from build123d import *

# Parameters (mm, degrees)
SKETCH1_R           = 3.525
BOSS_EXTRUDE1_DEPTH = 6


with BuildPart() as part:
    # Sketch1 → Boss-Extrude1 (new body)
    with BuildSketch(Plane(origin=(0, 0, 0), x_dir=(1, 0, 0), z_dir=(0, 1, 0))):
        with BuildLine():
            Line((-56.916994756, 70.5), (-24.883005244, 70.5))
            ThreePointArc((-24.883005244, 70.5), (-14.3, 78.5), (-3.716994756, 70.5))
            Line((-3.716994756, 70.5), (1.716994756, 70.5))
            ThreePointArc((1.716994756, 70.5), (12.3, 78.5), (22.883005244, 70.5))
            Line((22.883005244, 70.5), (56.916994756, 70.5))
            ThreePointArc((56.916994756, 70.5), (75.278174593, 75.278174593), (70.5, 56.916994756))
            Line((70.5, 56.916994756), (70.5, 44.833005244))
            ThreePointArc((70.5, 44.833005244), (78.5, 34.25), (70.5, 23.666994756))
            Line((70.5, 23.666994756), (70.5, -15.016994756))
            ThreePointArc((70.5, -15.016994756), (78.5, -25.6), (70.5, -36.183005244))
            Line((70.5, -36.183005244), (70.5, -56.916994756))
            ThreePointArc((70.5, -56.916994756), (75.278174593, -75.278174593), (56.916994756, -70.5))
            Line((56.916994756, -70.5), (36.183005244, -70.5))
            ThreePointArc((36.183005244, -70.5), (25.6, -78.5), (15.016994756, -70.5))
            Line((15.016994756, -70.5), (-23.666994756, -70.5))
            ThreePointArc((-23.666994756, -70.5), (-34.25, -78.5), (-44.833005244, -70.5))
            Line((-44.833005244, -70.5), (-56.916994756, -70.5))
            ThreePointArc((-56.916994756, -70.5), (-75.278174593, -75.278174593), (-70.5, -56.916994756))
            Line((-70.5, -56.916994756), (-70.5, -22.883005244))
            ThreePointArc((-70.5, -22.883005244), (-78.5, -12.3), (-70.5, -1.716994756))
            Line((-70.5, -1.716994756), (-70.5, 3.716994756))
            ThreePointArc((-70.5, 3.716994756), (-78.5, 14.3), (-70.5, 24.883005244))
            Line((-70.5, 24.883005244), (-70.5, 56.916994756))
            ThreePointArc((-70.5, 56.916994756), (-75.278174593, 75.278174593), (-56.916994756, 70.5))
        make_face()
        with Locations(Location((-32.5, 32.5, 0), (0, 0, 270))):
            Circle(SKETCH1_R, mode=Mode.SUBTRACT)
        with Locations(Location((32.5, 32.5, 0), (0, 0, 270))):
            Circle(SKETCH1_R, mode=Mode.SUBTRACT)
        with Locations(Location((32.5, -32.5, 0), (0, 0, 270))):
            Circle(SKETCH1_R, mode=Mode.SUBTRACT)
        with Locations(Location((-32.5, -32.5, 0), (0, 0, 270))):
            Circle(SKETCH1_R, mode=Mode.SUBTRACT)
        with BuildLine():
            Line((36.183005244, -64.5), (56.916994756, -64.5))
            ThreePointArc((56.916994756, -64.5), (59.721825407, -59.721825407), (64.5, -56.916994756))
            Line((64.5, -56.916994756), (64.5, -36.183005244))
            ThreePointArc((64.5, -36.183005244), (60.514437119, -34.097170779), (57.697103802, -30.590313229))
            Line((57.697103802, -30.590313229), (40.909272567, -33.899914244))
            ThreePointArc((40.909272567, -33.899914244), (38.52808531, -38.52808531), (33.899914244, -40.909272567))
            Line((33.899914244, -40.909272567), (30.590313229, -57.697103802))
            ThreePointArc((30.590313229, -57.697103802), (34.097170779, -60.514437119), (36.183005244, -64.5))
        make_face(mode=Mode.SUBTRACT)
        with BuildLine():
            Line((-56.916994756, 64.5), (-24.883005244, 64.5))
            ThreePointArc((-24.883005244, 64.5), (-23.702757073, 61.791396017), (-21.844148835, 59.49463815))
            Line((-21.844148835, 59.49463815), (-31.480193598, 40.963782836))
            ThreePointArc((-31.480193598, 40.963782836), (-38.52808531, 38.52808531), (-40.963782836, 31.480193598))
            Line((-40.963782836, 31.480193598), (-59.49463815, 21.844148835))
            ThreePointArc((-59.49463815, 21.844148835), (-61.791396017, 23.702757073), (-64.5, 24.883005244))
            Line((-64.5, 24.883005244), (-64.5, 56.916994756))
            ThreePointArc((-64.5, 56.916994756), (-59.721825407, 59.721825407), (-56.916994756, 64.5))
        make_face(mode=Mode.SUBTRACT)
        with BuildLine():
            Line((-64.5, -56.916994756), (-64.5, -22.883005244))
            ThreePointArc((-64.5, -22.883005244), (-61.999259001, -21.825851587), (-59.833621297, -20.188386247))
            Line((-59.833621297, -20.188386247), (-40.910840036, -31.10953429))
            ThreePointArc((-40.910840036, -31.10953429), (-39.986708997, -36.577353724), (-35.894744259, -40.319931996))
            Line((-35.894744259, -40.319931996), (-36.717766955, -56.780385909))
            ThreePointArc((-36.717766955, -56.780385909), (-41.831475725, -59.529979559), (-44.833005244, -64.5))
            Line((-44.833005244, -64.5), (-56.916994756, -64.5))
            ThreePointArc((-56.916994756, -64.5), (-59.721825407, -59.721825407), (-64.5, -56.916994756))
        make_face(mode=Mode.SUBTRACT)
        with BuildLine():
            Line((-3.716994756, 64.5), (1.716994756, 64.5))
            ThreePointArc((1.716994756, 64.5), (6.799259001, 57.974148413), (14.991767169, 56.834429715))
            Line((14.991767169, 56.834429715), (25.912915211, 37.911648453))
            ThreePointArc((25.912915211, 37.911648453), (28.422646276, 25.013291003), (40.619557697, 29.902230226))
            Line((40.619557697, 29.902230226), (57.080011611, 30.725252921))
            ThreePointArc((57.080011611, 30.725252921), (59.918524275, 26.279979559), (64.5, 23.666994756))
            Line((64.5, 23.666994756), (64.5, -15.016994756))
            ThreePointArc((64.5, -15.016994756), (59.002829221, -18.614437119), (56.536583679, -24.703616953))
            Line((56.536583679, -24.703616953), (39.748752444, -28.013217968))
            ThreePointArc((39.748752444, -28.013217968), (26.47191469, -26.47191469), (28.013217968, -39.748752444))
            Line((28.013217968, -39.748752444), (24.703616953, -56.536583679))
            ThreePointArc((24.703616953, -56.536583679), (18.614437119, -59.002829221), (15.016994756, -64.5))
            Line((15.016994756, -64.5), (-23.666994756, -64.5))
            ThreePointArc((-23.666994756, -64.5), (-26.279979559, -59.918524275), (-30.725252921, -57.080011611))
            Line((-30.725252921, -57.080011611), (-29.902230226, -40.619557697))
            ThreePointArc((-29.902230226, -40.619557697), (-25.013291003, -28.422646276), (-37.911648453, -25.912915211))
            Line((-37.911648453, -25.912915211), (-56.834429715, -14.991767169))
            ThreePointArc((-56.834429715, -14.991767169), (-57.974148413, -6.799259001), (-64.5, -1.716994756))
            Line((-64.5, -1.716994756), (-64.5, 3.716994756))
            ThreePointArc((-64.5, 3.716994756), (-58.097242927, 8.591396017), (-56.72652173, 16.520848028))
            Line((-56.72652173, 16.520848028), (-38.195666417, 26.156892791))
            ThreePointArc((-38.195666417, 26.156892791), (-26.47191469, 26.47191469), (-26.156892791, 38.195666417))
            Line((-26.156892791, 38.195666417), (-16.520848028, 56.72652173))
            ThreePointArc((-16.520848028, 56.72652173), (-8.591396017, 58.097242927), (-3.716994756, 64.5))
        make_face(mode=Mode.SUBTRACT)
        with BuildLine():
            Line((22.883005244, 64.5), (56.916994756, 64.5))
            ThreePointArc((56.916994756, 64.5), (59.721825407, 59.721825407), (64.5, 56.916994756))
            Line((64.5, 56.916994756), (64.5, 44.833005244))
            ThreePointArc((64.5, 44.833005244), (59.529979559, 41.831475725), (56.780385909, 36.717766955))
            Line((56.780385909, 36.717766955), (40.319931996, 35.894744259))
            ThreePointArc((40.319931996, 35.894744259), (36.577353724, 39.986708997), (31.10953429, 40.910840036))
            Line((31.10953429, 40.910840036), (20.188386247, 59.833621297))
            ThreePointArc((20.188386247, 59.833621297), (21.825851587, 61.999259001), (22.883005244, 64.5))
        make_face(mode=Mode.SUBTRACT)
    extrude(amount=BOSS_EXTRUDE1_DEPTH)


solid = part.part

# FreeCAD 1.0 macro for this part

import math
import FreeCAD as App
import Part
import Sketcher

V = App.Vector

doc = App.newDocument("Part")
body = doc.addObject("PartDesign::Body", "Body")

# Sketch on XZ plane
sketch1 = body.newObject("Sketcher::SketchObject", "Sketch")
sketch1.AttachmentSupport = (doc.getObject("XZ_Plane"), [""])
sketch1.MapMode = "FlatFace"
sketch1.addGeometry(Part.LineSegment(V(-24.9, -70.5, 0), V(-56.9, -70.5, 0)), False)
sketch1.addGeometry(Part.ArcOfCircle(Part.Circle(V(-67.5, -67.5, 0), V(0, 0, 1), 11), math.radians(106), math.radians(344)), False)
sketch1.addGeometry(Part.LineSegment(V(-70.5, -56.9, 0), V(-70.5, -24.9, 0)), False)
sketch1.addGeometry(Part.ArcOfCircle(Part.Circle(V(-67.5, -14.3, 0), V(0, 0, 1), 11), math.radians(106), math.radians(254)), False)
sketch1.addGeometry(Part.LineSegment(V(-70.5, -3.7, 0), V(-70.5, 1.7, 0)), False)
sketch1.addGeometry(Part.ArcOfCircle(Part.Circle(V(-67.5, 12.3, 0), V(0, 0, 1), 11), math.radians(106), math.radians(254)), False)
sketch1.addGeometry(Part.LineSegment(V(-70.5, 22.9, 0), V(-70.5, 56.9, 0)), False)
sketch1.addGeometry(Part.ArcOfCircle(Part.Circle(V(-67.5, 67.5, 0), V(0, 0, 1), 11), math.radians(16), math.radians(254)), False)
sketch1.addGeometry(Part.LineSegment(V(-56.9, 70.5, 0), V(-44.8, 70.5, 0)), False)
sketch1.addGeometry(Part.ArcOfCircle(Part.Circle(V(-34.2, 67.5, 0), V(0, 0, 1), 11), math.radians(16), math.radians(164)), False)
sketch1.addGeometry(Part.LineSegment(V(-23.7, 70.5, 0), V(15, 70.5, 0)), False)
sketch1.addGeometry(Part.ArcOfCircle(Part.Circle(V(25.6, 67.5, 0), V(0, 0, 1), 11), math.radians(16), math.radians(164)), False)
sketch1.addGeometry(Part.LineSegment(V(36.2, 70.5, 0), V(56.9, 70.5, 0)), False)
sketch1.addGeometry(Part.ArcOfCircle(Part.Circle(V(67.5, 67.5, 0), V(0, 0, 1), 11), math.radians(-74), math.radians(164)), False)
sketch1.addGeometry(Part.LineSegment(V(70.5, 56.9, 0), V(70.5, 36.2, 0)), False)
sketch1.addGeometry(Part.ArcOfCircle(Part.Circle(V(67.5, 25.6, 0), V(0, 0, 1), 11), math.radians(-74), math.radians(74)), False)
sketch1.addGeometry(Part.LineSegment(V(70.5, 15, 0), V(70.5, -23.7, 0)), False)
sketch1.addGeometry(Part.ArcOfCircle(Part.Circle(V(67.5, -34.2, 0), V(0, 0, 1), 11), math.radians(-74), math.radians(74)), False)
sketch1.addGeometry(Part.LineSegment(V(70.5, -44.8, 0), V(70.5, -56.9, 0)), False)
sketch1.addGeometry(Part.ArcOfCircle(Part.Circle(V(67.5, -67.5, 0), V(0, 0, 1), 11), math.radians(-164), math.radians(74)), False)
sketch1.addGeometry(Part.LineSegment(V(56.9, -70.5, 0), V(22.9, -70.5, 0)), False)
sketch1.addGeometry(Part.ArcOfCircle(Part.Circle(V(12.3, -67.5, 0), V(0, 0, 1), 11), math.radians(-164), math.radians(-16)), False)
sketch1.addGeometry(Part.LineSegment(V(1.7, -70.5, 0), V(-3.7, -70.5, 0)), False)
sketch1.addGeometry(Part.ArcOfCircle(Part.Circle(V(-14.3, -67.5, 0), V(0, 0, 1), 11), math.radians(-164), math.radians(-16)), False)
sketch1.addGeometry(Part.ArcOfCircle(Part.Circle(V(25.6, 67.5, 0), V(0, 0, 1), 11), math.radians(-63), math.radians(-16)), False)
sketch1.addGeometry(Part.LineSegment(V(30.6, 57.7, 0), V(33.9, 40.9, 0)), False)
sketch1.addGeometry(Part.ArcOfCircle(Part.Circle(V(32.5, 32.5, 0), V(0, 0, 1), 8.5), math.radians(9), math.radians(81)), False)
sketch1.addGeometry(Part.LineSegment(V(40.9, 33.9, 0), V(57.7, 30.6, 0)), False)
sketch1.addGeometry(Part.ArcOfCircle(Part.Circle(V(67.5, 25.6, 0), V(0, 0, 1), 11), math.radians(106), math.radians(153)), False)
sketch1.addGeometry(Part.LineSegment(V(64.5, 36.2, 0), V(64.5, 56.9, 0)), False)
sketch1.addGeometry(Part.ArcOfCircle(Part.Circle(V(67.5, 67.5, 0), V(0, 0, 1), 11), math.radians(-164), math.radians(-106)), False)
sketch1.addGeometry(Part.LineSegment(V(56.9, 64.5, 0), V(36.2, 64.5, 0)), False)
sketch1.addGeometry(Part.Circle(V(32.5, 32.5, 0), V(0, 0, 1), 3.5), False)
sketch1.addGeometry(Part.Circle(V(-32.5, 32.5, 0), V(0, 0, 1), 3.5), False)
sketch1.addGeometry(Part.LineSegment(V(-64.5, 56.9, 0), V(-64.5, 22.9, 0)), False)
sketch1.addGeometry(Part.ArcOfCircle(Part.Circle(V(-67.5, 12.3, 0), V(0, 0, 1), 11), math.radians(46), math.radians(74)), False)
sketch1.addGeometry(Part.LineSegment(V(-59.8, 20.2, 0), V(-40.9, 31.1, 0)), False)
sketch1.addGeometry(Part.ArcOfCircle(Part.Circle(V(-32.5, 32.5, 0), V(0, 0, 1), 8.5), math.radians(113), math.radians(189)), False)
sketch1.addGeometry(Part.LineSegment(V(-35.9, 40.3, 0), V(-36.7, 56.8, 0)), False)
sketch1.addGeometry(Part.ArcOfCircle(Part.Circle(V(-34.2, 67.5, 0), V(0, 0, 1), 11), math.radians(-164), math.radians(-103)), False)
sketch1.addGeometry(Part.LineSegment(V(-44.8, 64.5, 0), V(-56.9, 64.5, 0)), False)
sketch1.addGeometry(Part.ArcOfCircle(Part.Circle(V(-67.5, 67.5, 0), V(0, 0, 1), 11), math.radians(-74), math.radians(-16)), False)
sketch1.addGeometry(Part.Circle(V(32.5, -32.5, 0), V(0, 0, 1), 3.5), False)
sketch1.addGeometry(Part.LineSegment(V(22.9, -64.5, 0), V(56.9, -64.5, 0)), False)
sketch1.addGeometry(Part.ArcOfCircle(Part.Circle(V(67.5, -67.5, 0), V(0, 0, 1), 11), math.radians(106), math.radians(164)), False)
sketch1.addGeometry(Part.LineSegment(V(64.5, -56.9, 0), V(64.5, -44.8, 0)), False)
sketch1.addGeometry(Part.ArcOfCircle(Part.Circle(V(67.5, -34.2, 0), V(0, 0, 1), 11), math.radians(-167), math.radians(-106)), False)
sketch1.addGeometry(Part.LineSegment(V(56.8, -36.7, 0), V(40.3, -35.9, 0)), False)
sketch1.addGeometry(Part.ArcOfCircle(Part.Circle(V(32.5, -32.5, 0), V(0, 0, 1), 8.5), math.radians(-99), math.radians(-23)), False)
sketch1.addGeometry(Part.LineSegment(V(31.1, -40.9, 0), V(20.2, -59.8, 0)), False)
sketch1.addGeometry(Part.ArcOfCircle(Part.Circle(V(12.3, -67.5, 0), V(0, 0, 1), 11), math.radians(16), math.radians(44)), False)
sketch1.addGeometry(Part.LineSegment(V(-3.7, -64.5, 0), V(1.7, -64.5, 0)), False)
sketch1.addGeometry(Part.ArcOfCircle(Part.Circle(V(12.3, -67.5, 0), V(0, 0, 1), 11), math.radians(76), math.radians(164)), False)
sketch1.addGeometry(Part.LineSegment(V(15, -56.8, 0), V(25.9, -37.9, 0)), False)
sketch1.addGeometry(Part.ArcOfCircle(Part.Circle(V(32.5, -32.5, 0), V(0, 0, 1), 8.5), math.radians(18), math.radians(219)), False)
sketch1.addGeometry(Part.LineSegment(V(40.6, -29.9, 0), V(57.1, -30.7, 0)), False)
sketch1.addGeometry(Part.ArcOfCircle(Part.Circle(V(67.5, -34.2, 0), V(0, 0, 1), 11), math.radians(106), math.radians(161)), False)
sketch1.addGeometry(Part.LineSegment(V(64.5, -23.7, 0), V(64.5, 15, 0)), False)
sketch1.addGeometry(Part.ArcOfCircle(Part.Circle(V(67.5, 25.6, 0), V(0, 0, 1), 11), math.radians(-175), math.radians(-106)), False)
sketch1.addGeometry(Part.LineSegment(V(56.5, 24.7, 0), V(39.7, 28, 0)), False)
sketch1.addGeometry(Part.ArcOfCircle(Part.Circle(V(32.5, 32.5, 0), V(0, 0, 1), 8.5), math.radians(122), math.radians(328)), False)
sketch1.addGeometry(Part.LineSegment(V(28, 39.7, 0), V(24.7, 56.5, 0)), False)
sketch1.addGeometry(Part.ArcOfCircle(Part.Circle(V(25.6, 67.5, 0), V(0, 0, 1), 11), math.radians(-164), math.radians(-95)), False)
sketch1.addGeometry(Part.LineSegment(V(15, 64.5, 0), V(-23.7, 64.5, 0)), False)
sketch1.addGeometry(Part.ArcOfCircle(Part.Circle(V(-34.2, 67.5, 0), V(0, 0, 1), 11), math.radians(-71), math.radians(-16)), False)
sketch1.addGeometry(Part.LineSegment(V(-30.7, 57.1, 0), V(-29.9, 40.6, 0)), False)
sketch1.addGeometry(Part.ArcOfCircle(Part.Circle(V(-32.5, 32.5, 0), V(0, 0, 1), 8.5), math.radians(-129), math.radians(72)), False)
sketch1.addGeometry(Part.LineSegment(V(-37.9, 25.9, 0), V(-56.8, 15, 0)), False)
sketch1.addGeometry(Part.ArcOfCircle(Part.Circle(V(-67.5, 12.3, 0), V(0, 0, 1), 11), math.radians(-74), math.radians(14)), False)
sketch1.addGeometry(Part.LineSegment(V(-64.5, 1.7, 0), V(-64.5, -3.7, 0)), False)
sketch1.addGeometry(Part.ArcOfCircle(Part.Circle(V(-67.5, -14.3, 0), V(0, 0, 1), 11), math.radians(-12), math.radians(74)), False)
sketch1.addGeometry(Part.LineSegment(V(-56.7, -16.5, 0), V(-38.2, -26.2, 0)), False)
sketch1.addGeometry(Part.ArcOfCircle(Part.Circle(V(-32.5, -32.5, 0), V(0, 0, 1), 8.5), math.radians(-42), math.radians(132)), False)
sketch1.addGeometry(Part.LineSegment(V(-26.2, -38.2, 0), V(-16.5, -56.7, 0)), False)
sketch1.addGeometry(Part.ArcOfCircle(Part.Circle(V(-14.3, -67.5, 0), V(0, 0, 1), 11), math.radians(16), math.radians(102)), False)
sketch1.addGeometry(Part.Circle(V(-32.5, -32.5, 0), V(0, 0, 1), 3.5), False)
sketch1.addGeometry(Part.LineSegment(V(-56.9, -64.5, 0), V(-24.9, -64.5, 0)), False)
sketch1.addGeometry(Part.ArcOfCircle(Part.Circle(V(-14.3, -67.5, 0), V(0, 0, 1), 11), math.radians(133), math.radians(164)), False)
sketch1.addGeometry(Part.LineSegment(V(-21.8, -59.5, 0), V(-31.5, -41, 0)), False)
sketch1.addGeometry(Part.ArcOfCircle(Part.Circle(V(-32.5, -32.5, 0), V(0, 0, 1), 8.5), math.radians(173), math.radians(277)), False)
sketch1.addGeometry(Part.LineSegment(V(-41, -31.5, 0), V(-59.5, -21.8, 0)), False)
sketch1.addGeometry(Part.ArcOfCircle(Part.Circle(V(-67.5, -14.3, 0), V(0, 0, 1), 11), math.radians(-74), math.radians(-43)), False)
sketch1.addGeometry(Part.LineSegment(V(-64.5, -24.9, 0), V(-64.5, -56.9, 0)), False)
sketch1.addGeometry(Part.ArcOfCircle(Part.Circle(V(-67.5, -67.5, 0), V(0, 0, 1), 11), math.radians(16), math.radians(74)), False)
sketch1.addConstraint(Sketcher.Constraint("Coincident", 0, 2, 1, 2))
sketch1.addConstraint(Sketcher.Constraint("Coincident", 1, 1, 2, 1))
sketch1.addConstraint(Sketcher.Constraint("Coincident", 2, 2, 3, 2))
sketch1.addConstraint(Sketcher.Constraint("Coincident", 3, 1, 4, 1))
sketch1.addConstraint(Sketcher.Constraint("Coincident", 4, 2, 5, 2))
sketch1.addConstraint(Sketcher.Constraint("Coincident", 5, 1, 6, 1))
sketch1.addConstraint(Sketcher.Constraint("Coincident", 6, 2, 7, 2))
sketch1.addConstraint(Sketcher.Constraint("Coincident", 7, 1, 8, 1))
sketch1.addConstraint(Sketcher.Constraint("Coincident", 8, 2, 9, 2))
sketch1.addConstraint(Sketcher.Constraint("Coincident", 9, 1, 10, 1))
sketch1.addConstraint(Sketcher.Constraint("Coincident", 10, 2, 11, 2))
sketch1.addConstraint(Sketcher.Constraint("Coincident", 11, 1, 12, 1))
sketch1.addConstraint(Sketcher.Constraint("Coincident", 12, 2, 13, 2))
sketch1.addConstraint(Sketcher.Constraint("Coincident", 13, 1, 14, 1))
sketch1.addConstraint(Sketcher.Constraint("Coincident", 14, 2, 15, 2))
sketch1.addConstraint(Sketcher.Constraint("Coincident", 15, 1, 16, 1))
sketch1.addConstraint(Sketcher.Constraint("Coincident", 16, 2, 17, 2))
sketch1.addConstraint(Sketcher.Constraint("Coincident", 17, 1, 18, 1))
sketch1.addConstraint(Sketcher.Constraint("Coincident", 18, 2, 19, 2))
sketch1.addConstraint(Sketcher.Constraint("Coincident", 19, 1, 20, 1))
sketch1.addConstraint(Sketcher.Constraint("Coincident", 20, 2, 21, 2))
sketch1.addConstraint(Sketcher.Constraint("Coincident", 21, 1, 22, 1))
sketch1.addConstraint(Sketcher.Constraint("Coincident", 22, 2, 23, 2))
sketch1.addConstraint(Sketcher.Constraint("Coincident", 23, 1, 0, 1))
sketch1.addConstraint(Sketcher.Constraint("Coincident", 24, 1, 25, 1))
sketch1.addConstraint(Sketcher.Constraint("Coincident", 25, 2, 26, 2))
sketch1.addConstraint(Sketcher.Constraint("Coincident", 26, 1, 27, 1))
sketch1.addConstraint(Sketcher.Constraint("Coincident", 27, 2, 28, 2))
sketch1.addConstraint(Sketcher.Constraint("Coincident", 28, 1, 29, 1))
sketch1.addConstraint(Sketcher.Constraint("Coincident", 29, 2, 30, 2))
sketch1.addConstraint(Sketcher.Constraint("Coincident", 30, 1, 31, 1))
sketch1.addConstraint(Sketcher.Constraint("Coincident", 31, 2, 24, 2))
sketch1.addConstraint(Sketcher.Constraint("Coincident", 34, 2, 35, 2))
sketch1.addConstraint(Sketcher.Constraint("Coincident", 35, 1, 36, 1))
sketch1.addConstraint(Sketcher.Constraint("Coincident", 36, 2, 37, 2))
sketch1.addConstraint(Sketcher.Constraint("Coincident", 37, 1, 38, 1))
sketch1.addConstraint(Sketcher.Constraint("Coincident", 38, 2, 39, 2))
sketch1.addConstraint(Sketcher.Constraint("Coincident", 39, 1, 40, 1))
sketch1.addConstraint(Sketcher.Constraint("Coincident", 40, 2, 41, 2))
sketch1.addConstraint(Sketcher.Constraint("Coincident", 41, 1, 34, 1))
sketch1.addConstraint(Sketcher.Constraint("Coincident", 43, 2, 44, 2))
sketch1.addConstraint(Sketcher.Constraint("Coincident", 44, 1, 45, 1))
sketch1.addConstraint(Sketcher.Constraint("Coincident", 45, 2, 46, 2))
sketch1.addConstraint(Sketcher.Constraint("Coincident", 46, 1, 47, 1))
sketch1.addConstraint(Sketcher.Constraint("Coincident", 47, 2, 48, 2))
sketch1.addConstraint(Sketcher.Constraint("Coincident", 48, 1, 49, 1))
sketch1.addConstraint(Sketcher.Constraint("Coincident", 49, 2, 50, 2))
sketch1.addConstraint(Sketcher.Constraint("Coincident", 50, 1, 43, 1))
sketch1.addConstraint(Sketcher.Constraint("Coincident", 51, 2, 52, 2))
sketch1.addConstraint(Sketcher.Constraint("Coincident", 52, 1, 53, 1))
sketch1.addConstraint(Sketcher.Constraint("Coincident", 53, 2, 54, 2))
sketch1.addConstraint(Sketcher.Constraint("Coincident", 54, 1, 55, 1))
sketch1.addConstraint(Sketcher.Constraint("Coincident", 55, 2, 56, 2))
sketch1.addConstraint(Sketcher.Constraint("Coincident", 56, 1, 57, 1))
sketch1.addConstraint(Sketcher.Constraint("Coincident", 57, 2, 58, 2))
sketch1.addConstraint(Sketcher.Constraint("Coincident", 58, 1, 59, 1))
sketch1.addConstraint(Sketcher.Constraint("Coincident", 59, 2, 60, 2))
sketch1.addConstraint(Sketcher.Constraint("Coincident", 60, 1, 61, 1))
sketch1.addConstraint(Sketcher.Constraint("Coincident", 61, 2, 62, 2))
sketch1.addConstraint(Sketcher.Constraint("Coincident", 62, 1, 63, 1))
sketch1.addConstraint(Sketcher.Constraint("Coincident", 63, 2, 64, 2))
sketch1.addConstraint(Sketcher.Constraint("Coincident", 64, 1, 65, 1))
sketch1.addConstraint(Sketcher.Constraint("Coincident", 65, 2, 66, 2))
sketch1.addConstraint(Sketcher.Constraint("Coincident", 66, 1, 67, 1))
sketch1.addConstraint(Sketcher.Constraint("Coincident", 67, 2, 68, 2))
sketch1.addConstraint(Sketcher.Constraint("Coincident", 68, 1, 69, 1))
sketch1.addConstraint(Sketcher.Constraint("Coincident", 69, 2, 70, 2))
sketch1.addConstraint(Sketcher.Constraint("Coincident", 70, 1, 71, 1))
sketch1.addConstraint(Sketcher.Constraint("Coincident", 71, 2, 72, 2))
sketch1.addConstraint(Sketcher.Constraint("Coincident", 72, 1, 73, 1))
sketch1.addConstraint(Sketcher.Constraint("Coincident", 73, 2, 74, 2))
sketch1.addConstraint(Sketcher.Constraint("Coincident", 74, 1, 51, 1))
sketch1.addConstraint(Sketcher.Constraint("Coincident", 76, 2, 77, 2))
sketch1.addConstraint(Sketcher.Constraint("Coincident", 77, 1, 78, 1))
sketch1.addConstraint(Sketcher.Constraint("Coincident", 78, 2, 79, 2))
sketch1.addConstraint(Sketcher.Constraint("Coincident", 79, 1, 80, 1))
sketch1.addConstraint(Sketcher.Constraint("Coincident", 80, 2, 81, 2))
sketch1.addConstraint(Sketcher.Constraint("Coincident", 81, 1, 82, 1))
sketch1.addConstraint(Sketcher.Constraint("Coincident", 82, 2, 83, 2))
sketch1.addConstraint(Sketcher.Constraint("Coincident", 83, 1, 76, 1))
sketch1.addConstraint(Sketcher.Constraint("Horizontal", 0))
sketch1.addConstraint(Sketcher.Constraint("Vertical", 2))
sketch1.addConstraint(Sketcher.Constraint("Vertical", 4))
sketch1.addConstraint(Sketcher.Constraint("Vertical", 6))
sketch1.addConstraint(Sketcher.Constraint("Horizontal", 8))
sketch1.addConstraint(Sketcher.Constraint("Horizontal", 10))
sketch1.addConstraint(Sketcher.Constraint("Horizontal", 12))
sketch1.addConstraint(Sketcher.Constraint("Vertical", 14))
sketch1.addConstraint(Sketcher.Constraint("Vertical", 16))
sketch1.addConstraint(Sketcher.Constraint("Vertical", 18))
sketch1.addConstraint(Sketcher.Constraint("Horizontal", 20))
sketch1.addConstraint(Sketcher.Constraint("Horizontal", 22))
sketch1.addConstraint(Sketcher.Constraint("Vertical", 29))
sketch1.addConstraint(Sketcher.Constraint("Horizontal", 31))
sketch1.addConstraint(Sketcher.Constraint("Vertical", 34))
sketch1.addConstraint(Sketcher.Constraint("Horizontal", 40))
sketch1.addConstraint(Sketcher.Constraint("Horizontal", 43))
sketch1.addConstraint(Sketcher.Constraint("Vertical", 45))
sketch1.addConstraint(Sketcher.Constraint("Horizontal", 51))
sketch1.addConstraint(Sketcher.Constraint("Vertical", 57))
sketch1.addConstraint(Sketcher.Constraint("Horizontal", 63))
sketch1.addConstraint(Sketcher.Constraint("Vertical", 69))
sketch1.addConstraint(Sketcher.Constraint("Horizontal", 76))
sketch1.addConstraint(Sketcher.Constraint("Vertical", 82))
sketch1.addConstraint(Sketcher.Constraint("Coincident", 24, 3, 11, 3))
sketch1.addConstraint(Sketcher.Constraint("Coincident", 28, 3, 15, 3))
sketch1.addConstraint(Sketcher.Constraint("Coincident", 30, 3, 13, 3))
sketch1.addConstraint(Sketcher.Constraint("Coincident", 32, 3, 26, 3))
sketch1.addConstraint(Sketcher.Constraint("Coincident", 35, 3, 5, 3))
sketch1.addConstraint(Sketcher.Constraint("Coincident", 37, 3, 33, 3))
sketch1.addConstraint(Sketcher.Constraint("Coincident", 39, 3, 9, 3))
sketch1.addConstraint(Sketcher.Constraint("Coincident", 41, 3, 7, 3))
sketch1.addConstraint(Sketcher.Constraint("Coincident", 44, 3, 19, 3))
sketch1.addConstraint(Sketcher.Constraint("Coincident", 46, 3, 17, 3))
sketch1.addConstraint(Sketcher.Constraint("Coincident", 48, 3, 42, 3))
sketch1.addConstraint(Sketcher.Constraint("Coincident", 50, 3, 21, 3))
sketch1.addConstraint(Sketcher.Constraint("Coincident", 52, 3, 21, 3))
sketch1.addConstraint(Sketcher.Constraint("Coincident", 54, 3, 42, 3))
sketch1.addConstraint(Sketcher.Constraint("Coincident", 56, 3, 17, 3))
sketch1.addConstraint(Sketcher.Constraint("Coincident", 58, 3, 15, 3))
sketch1.addConstraint(Sketcher.Constraint("Coincident", 60, 3, 26, 3))
sketch1.addConstraint(Sketcher.Constraint("Coincident", 62, 3, 11, 3))
sketch1.addConstraint(Sketcher.Constraint("Coincident", 64, 3, 9, 3))
sketch1.addConstraint(Sketcher.Constraint("Coincident", 66, 3, 33, 3))
sketch1.addConstraint(Sketcher.Constraint("Coincident", 68, 3, 5, 3))
sketch1.addConstraint(Sketcher.Constraint("Coincident", 70, 3, 3, 3))
sketch1.addConstraint(Sketcher.Constraint("Coincident", 74, 3, 23, 3))
sketch1.addConstraint(Sketcher.Constraint("Coincident", 75, 3, 72, 3))
sketch1.addConstraint(Sketcher.Constraint("Coincident", 77, 3, 23, 3))
sketch1.addConstraint(Sketcher.Constraint("Coincident", 79, 3, 72, 3))
sketch1.addConstraint(Sketcher.Constraint("Coincident", 81, 3, 3, 3))
sketch1.addConstraint(Sketcher.Constraint("Coincident", 83, 3, 1, 3))
sketch1.addConstraint(Sketcher.Constraint("Equal", 1, 3))
sketch1.addConstraint(Sketcher.Constraint("Equal", 3, 5))
sketch1.addConstraint(Sketcher.Constraint("Equal", 5, 7))
sketch1.addConstraint(Sketcher.Constraint("Equal", 7, 9))
sketch1.addConstraint(Sketcher.Constraint("Equal", 9, 11))
sketch1.addConstraint(Sketcher.Constraint("Equal", 11, 13))
sketch1.addConstraint(Sketcher.Constraint("Equal", 13, 15))
sketch1.addConstraint(Sketcher.Constraint("Equal", 15, 17))
sketch1.addConstraint(Sketcher.Constraint("Equal", 17, 19))
sketch1.addConstraint(Sketcher.Constraint("Equal", 19, 21))
sketch1.addConstraint(Sketcher.Constraint("Equal", 21, 23))
sketch1.addConstraint(Sketcher.Constraint("Equal", 23, 24))
sketch1.addConstraint(Sketcher.Constraint("Equal", 24, 28))
sketch1.addConstraint(Sketcher.Constraint("Equal", 28, 30))
sketch1.addConstraint(Sketcher.Constraint("Equal", 32, 33))
sketch1.addConstraint(Sketcher.Constraint("Equal", 30, 35))
sketch1.addConstraint(Sketcher.Constraint("Equal", 26, 37))
sketch1.addConstraint(Sketcher.Constraint("Equal", 35, 39))
sketch1.addConstraint(Sketcher.Constraint("Equal", 39, 41))
sketch1.addConstraint(Sketcher.Constraint("Equal", 33, 42))
sketch1.addConstraint(Sketcher.Constraint("Equal", 41, 44))
sketch1.addConstraint(Sketcher.Constraint("Equal", 44, 46))
sketch1.addConstraint(Sketcher.Constraint("Equal", 37, 48))
sketch1.addConstraint(Sketcher.Constraint("Equal", 46, 50))
sketch1.addConstraint(Sketcher.Constraint("Equal", 50, 52))
sketch1.addConstraint(Sketcher.Constraint("Equal", 48, 54))
sketch1.addConstraint(Sketcher.Constraint("Equal", 52, 56))
sketch1.addConstraint(Sketcher.Constraint("Equal", 56, 58))
sketch1.addConstraint(Sketcher.Constraint("Equal", 54, 60))
sketch1.addConstraint(Sketcher.Constraint("Equal", 58, 62))
sketch1.addConstraint(Sketcher.Constraint("Equal", 62, 64))
sketch1.addConstraint(Sketcher.Constraint("Equal", 60, 66))
sketch1.addConstraint(Sketcher.Constraint("Equal", 64, 68))
sketch1.addConstraint(Sketcher.Constraint("Equal", 68, 70))
sketch1.addConstraint(Sketcher.Constraint("Equal", 66, 72))
sketch1.addConstraint(Sketcher.Constraint("Equal", 70, 74))
sketch1.addConstraint(Sketcher.Constraint("Equal", 42, 75))
sketch1.addConstraint(Sketcher.Constraint("Equal", 74, 77))
sketch1.addConstraint(Sketcher.Constraint("Equal", 72, 79))
sketch1.addConstraint(Sketcher.Constraint("Equal", 77, 81))
sketch1.addConstraint(Sketcher.Constraint("Equal", 81, 83))
sketch1.addConstraint(Sketcher.Constraint("Symmetric", 1, 3, 13, 3, -1, 1))
sketch1.addConstraint(Sketcher.Constraint("Symmetric", 7, 3, 19, 3, -1, 1))
sketch1.addConstraint(Sketcher.Constraint("Symmetric", 33, 3, 42, 3, -1, 1))
sketch1.addConstraint(Sketcher.Constraint("Symmetric", 26, 3, 72, 3, -1, 1))
sketch1.addConstraint(Sketcher.Constraint("Symmetric", 7, 3, 13, 3, -2))
sketch1.addConstraint(Sketcher.Constraint("Symmetric", 26, 3, 33, 3, -2))
sketch1.addConstraint(Sketcher.Constraint("Parallel", 49, 53))
sketch1.addConstraint(Sketcher.Constraint("Parallel", 47, 55))
sketch1.addConstraint(Sketcher.Constraint("Parallel", 27, 59))
sketch1.addConstraint(Sketcher.Constraint("Parallel", 25, 61))
sketch1.addConstraint(Sketcher.Constraint("Parallel", 38, 65))
sketch1.addConstraint(Sketcher.Constraint("Parallel", 36, 67))
sketch1.addConstraint(Sketcher.Constraint("Parallel", 73, 78))
sketch1.addConstraint(Sketcher.Constraint("Parallel", 71, 80))
sketch1.addConstraint(Sketcher.Constraint("Horizontal", 7, 3, 9, 3))
sketch1.addConstraint(Sketcher.Constraint("Horizontal", 9, 3, 11, 3))
sketch1.addConstraint(Sketcher.Constraint("Horizontal", 19, 3, 21, 3))
sketch1.addConstraint(Sketcher.Constraint("Horizontal", 21, 3, 23, 3))
sketch1.addConstraint(Sketcher.Constraint("Horizontal", 8, 2, 9, 1))
sketch1.addConstraint(Sketcher.Constraint("Horizontal", 10, 2, 11, 1))
sketch1.addConstraint(Sketcher.Constraint("Horizontal", 6, 2, 13, 1))
sketch1.addConstraint(Sketcher.Constraint("Horizontal", 1, 1, 18, 2))
sketch1.addConstraint(Sketcher.Constraint("Horizontal", 0, 2, 19, 1))
sketch1.addConstraint(Sketcher.Constraint("Horizontal", 20, 2, 21, 1))
sketch1.addConstraint(Sketcher.Constraint("Horizontal", 14, 2, 28, 1))
sketch1.addConstraint(Sketcher.Constraint("Horizontal", 13, 1, 29, 2))
sketch1.addConstraint(Sketcher.Constraint("Horizontal", 5, 1, 34, 2))
sketch1.addConstraint(Sketcher.Constraint("Horizontal", 31, 2, 39, 1))
sketch1.addConstraint(Sketcher.Constraint("Horizontal", 29, 2, 41, 1))
sketch1.addConstraint(Sketcher.Constraint("Horizontal", 18, 2, 44, 1))
sketch1.addConstraint(Sketcher.Constraint("Horizontal", 17, 1, 45, 2))
sketch1.addConstraint(Sketcher.Constraint("Horizontal", 50, 1, 51, 2))
sketch1.addConstraint(Sketcher.Constraint("Horizontal", 16, 2, 56, 1))
sketch1.addConstraint(Sketcher.Constraint("Horizontal", 40, 2, 62, 1))
sketch1.addConstraint(Sketcher.Constraint("Horizontal", 4, 2, 68, 1))
sketch1.addConstraint(Sketcher.Constraint("Horizontal", 3, 1, 69, 2))
sketch1.addConstraint(Sketcher.Constraint("Horizontal", 74, 1, 76, 2))
sketch1.addConstraint(Sketcher.Constraint("Horizontal", 2, 2, 81, 1))
sketch1.addConstraint(Sketcher.Constraint("Vertical", 2, 2, 3, 1))
sketch1.addConstraint(Sketcher.Constraint("Vertical", 4, 2, 5, 1))
sketch1.addConstraint(Sketcher.Constraint("Vertical", 0, 2, 7, 1))
sketch1.addConstraint(Sketcher.Constraint("Vertical", 14, 2, 15, 1))
sketch1.addConstraint(Sketcher.Constraint("Vertical", 19, 1, 30, 1))
sketch1.addConstraint(Sketcher.Constraint("Vertical", 30, 1, 43, 2))
sketch1.addConstraint(Sketcher.Constraint("Equal", 76, 2))
sketch1.addConstraint(Sketcher.Constraint("Equal", 51, 4))
sketch1.addConstraint(Sketcher.Constraint("Equal", 43, 6))
sketch1.addConstraint(Sketcher.Constraint("Equal", 31, 14))
sketch1.addConstraint(Sketcher.Constraint("Equal", 63, 16))
sketch1.addConstraint(Sketcher.Constraint("Equal", 25, 27))
sketch1.addConstraint(Sketcher.Constraint("Equal", 38, 47))
sketch1.addConstraint(Sketcher.Constraint("Equal", 36, 49))
sketch1.addConstraint(Sketcher.Constraint("Equal", 49, 53))
sketch1.addConstraint(Sketcher.Constraint("Equal", 47, 55))
sketch1.addConstraint(Sketcher.Constraint("Equal", 27, 59))
sketch1.addConstraint(Sketcher.Constraint("Equal", 59, 61))
sketch1.addConstraint(Sketcher.Constraint("Equal", 55, 65))
sketch1.addConstraint(Sketcher.Constraint("Equal", 53, 67))
sketch1.addConstraint(Sketcher.Constraint("Equal", 71, 73))
sketch1.addConstraint(Sketcher.Constraint("Equal", 73, 78))
sketch1.addConstraint(Sketcher.Constraint("Equal", 78, 80))
sketch1.addConstraint(Sketcher.Constraint("Radius", 1, 11.0))
sketch1.addConstraint(Sketcher.Constraint("Diameter", 32, 7.05))
sketch1.addConstraint(Sketcher.Constraint("Radius", 26, 8.525))
sketch1.addConstraint(Sketcher.Constraint("DistanceX", 1, 3, -1, 1, 67.5))
sketch1.addConstraint(Sketcher.Constraint("DistanceY", 1, 3, -1, 1, 67.5))
sketch1.addConstraint(Sketcher.Constraint("DistanceY", 3, 3, -1, 1, 14.3))
sketch1.addConstraint(Sketcher.Constraint("DistanceY", -1, 1, 5, 3, 12.3))
sketch1.addConstraint(Sketcher.Constraint("DistanceX", -1, 1, 11, 3, 25.6))
sketch1.addConstraint(Sketcher.Constraint("DistanceX", -1, 1, 26, 3, 32.5))
sketch1.addConstraint(Sketcher.Constraint("DistanceY", -1, 1, 26, 3, 32.5))
sketch1.addConstraint(Sketcher.Constraint("DistanceY", 0, 2, -1, 1, 70.5))
sketch1.addConstraint(Sketcher.Constraint("DistanceX", 9, 3, -1, 1, 34.25))
sketch1.addConstraint(Sketcher.Constraint("Distance", 71, 20.886502))
sketch1.addConstraint(Sketcher.Constraint("DistanceX", 35, 1, -1, 1, 59.833621))
sketch1.addConstraint(Sketcher.Constraint("DistanceX", 36, 2, -1, 1, 40.91084))
sketch1.addConstraint(Sketcher.Constraint("DistanceY", -1, 1, 37, 1, 40.319932))
sketch1.addConstraint(Sketcher.Constraint("DistanceX", -1, 1, 47, 2, 40.319932))
sketch1.addConstraint(Sketcher.Constraint("DistanceY", 48, 1, -1, 1, 40.91084))
sketch1.addConstraint(Sketcher.Constraint("DistanceY", 54, 1, -1, 1, 29.90223))
sketch1.addConstraint(Sketcher.Constraint("DistanceX", 70, 1, -1, 1, 56.726522))
sketch1.addConstraint(Sketcher.Constraint("DistanceX", 73, 2, -1, 1, 16.520848))
sketch1.addConstraint(Sketcher.Constraint("Distance", 25, 17.110954))
sketch1.addConstraint(Sketcher.Constraint("DistanceX", -1, 1, 24, 1, 30.590313))
sketch1.addConstraint(Sketcher.Constraint("DistanceX", -1, 1, 26, 1, 40.909273))
pad1 = body.newObject("PartDesign::Pad", "Pad")
pad1.Profile = sketch1
pad1.Length = 6
pad1.Reversed = True

doc.recompute()
